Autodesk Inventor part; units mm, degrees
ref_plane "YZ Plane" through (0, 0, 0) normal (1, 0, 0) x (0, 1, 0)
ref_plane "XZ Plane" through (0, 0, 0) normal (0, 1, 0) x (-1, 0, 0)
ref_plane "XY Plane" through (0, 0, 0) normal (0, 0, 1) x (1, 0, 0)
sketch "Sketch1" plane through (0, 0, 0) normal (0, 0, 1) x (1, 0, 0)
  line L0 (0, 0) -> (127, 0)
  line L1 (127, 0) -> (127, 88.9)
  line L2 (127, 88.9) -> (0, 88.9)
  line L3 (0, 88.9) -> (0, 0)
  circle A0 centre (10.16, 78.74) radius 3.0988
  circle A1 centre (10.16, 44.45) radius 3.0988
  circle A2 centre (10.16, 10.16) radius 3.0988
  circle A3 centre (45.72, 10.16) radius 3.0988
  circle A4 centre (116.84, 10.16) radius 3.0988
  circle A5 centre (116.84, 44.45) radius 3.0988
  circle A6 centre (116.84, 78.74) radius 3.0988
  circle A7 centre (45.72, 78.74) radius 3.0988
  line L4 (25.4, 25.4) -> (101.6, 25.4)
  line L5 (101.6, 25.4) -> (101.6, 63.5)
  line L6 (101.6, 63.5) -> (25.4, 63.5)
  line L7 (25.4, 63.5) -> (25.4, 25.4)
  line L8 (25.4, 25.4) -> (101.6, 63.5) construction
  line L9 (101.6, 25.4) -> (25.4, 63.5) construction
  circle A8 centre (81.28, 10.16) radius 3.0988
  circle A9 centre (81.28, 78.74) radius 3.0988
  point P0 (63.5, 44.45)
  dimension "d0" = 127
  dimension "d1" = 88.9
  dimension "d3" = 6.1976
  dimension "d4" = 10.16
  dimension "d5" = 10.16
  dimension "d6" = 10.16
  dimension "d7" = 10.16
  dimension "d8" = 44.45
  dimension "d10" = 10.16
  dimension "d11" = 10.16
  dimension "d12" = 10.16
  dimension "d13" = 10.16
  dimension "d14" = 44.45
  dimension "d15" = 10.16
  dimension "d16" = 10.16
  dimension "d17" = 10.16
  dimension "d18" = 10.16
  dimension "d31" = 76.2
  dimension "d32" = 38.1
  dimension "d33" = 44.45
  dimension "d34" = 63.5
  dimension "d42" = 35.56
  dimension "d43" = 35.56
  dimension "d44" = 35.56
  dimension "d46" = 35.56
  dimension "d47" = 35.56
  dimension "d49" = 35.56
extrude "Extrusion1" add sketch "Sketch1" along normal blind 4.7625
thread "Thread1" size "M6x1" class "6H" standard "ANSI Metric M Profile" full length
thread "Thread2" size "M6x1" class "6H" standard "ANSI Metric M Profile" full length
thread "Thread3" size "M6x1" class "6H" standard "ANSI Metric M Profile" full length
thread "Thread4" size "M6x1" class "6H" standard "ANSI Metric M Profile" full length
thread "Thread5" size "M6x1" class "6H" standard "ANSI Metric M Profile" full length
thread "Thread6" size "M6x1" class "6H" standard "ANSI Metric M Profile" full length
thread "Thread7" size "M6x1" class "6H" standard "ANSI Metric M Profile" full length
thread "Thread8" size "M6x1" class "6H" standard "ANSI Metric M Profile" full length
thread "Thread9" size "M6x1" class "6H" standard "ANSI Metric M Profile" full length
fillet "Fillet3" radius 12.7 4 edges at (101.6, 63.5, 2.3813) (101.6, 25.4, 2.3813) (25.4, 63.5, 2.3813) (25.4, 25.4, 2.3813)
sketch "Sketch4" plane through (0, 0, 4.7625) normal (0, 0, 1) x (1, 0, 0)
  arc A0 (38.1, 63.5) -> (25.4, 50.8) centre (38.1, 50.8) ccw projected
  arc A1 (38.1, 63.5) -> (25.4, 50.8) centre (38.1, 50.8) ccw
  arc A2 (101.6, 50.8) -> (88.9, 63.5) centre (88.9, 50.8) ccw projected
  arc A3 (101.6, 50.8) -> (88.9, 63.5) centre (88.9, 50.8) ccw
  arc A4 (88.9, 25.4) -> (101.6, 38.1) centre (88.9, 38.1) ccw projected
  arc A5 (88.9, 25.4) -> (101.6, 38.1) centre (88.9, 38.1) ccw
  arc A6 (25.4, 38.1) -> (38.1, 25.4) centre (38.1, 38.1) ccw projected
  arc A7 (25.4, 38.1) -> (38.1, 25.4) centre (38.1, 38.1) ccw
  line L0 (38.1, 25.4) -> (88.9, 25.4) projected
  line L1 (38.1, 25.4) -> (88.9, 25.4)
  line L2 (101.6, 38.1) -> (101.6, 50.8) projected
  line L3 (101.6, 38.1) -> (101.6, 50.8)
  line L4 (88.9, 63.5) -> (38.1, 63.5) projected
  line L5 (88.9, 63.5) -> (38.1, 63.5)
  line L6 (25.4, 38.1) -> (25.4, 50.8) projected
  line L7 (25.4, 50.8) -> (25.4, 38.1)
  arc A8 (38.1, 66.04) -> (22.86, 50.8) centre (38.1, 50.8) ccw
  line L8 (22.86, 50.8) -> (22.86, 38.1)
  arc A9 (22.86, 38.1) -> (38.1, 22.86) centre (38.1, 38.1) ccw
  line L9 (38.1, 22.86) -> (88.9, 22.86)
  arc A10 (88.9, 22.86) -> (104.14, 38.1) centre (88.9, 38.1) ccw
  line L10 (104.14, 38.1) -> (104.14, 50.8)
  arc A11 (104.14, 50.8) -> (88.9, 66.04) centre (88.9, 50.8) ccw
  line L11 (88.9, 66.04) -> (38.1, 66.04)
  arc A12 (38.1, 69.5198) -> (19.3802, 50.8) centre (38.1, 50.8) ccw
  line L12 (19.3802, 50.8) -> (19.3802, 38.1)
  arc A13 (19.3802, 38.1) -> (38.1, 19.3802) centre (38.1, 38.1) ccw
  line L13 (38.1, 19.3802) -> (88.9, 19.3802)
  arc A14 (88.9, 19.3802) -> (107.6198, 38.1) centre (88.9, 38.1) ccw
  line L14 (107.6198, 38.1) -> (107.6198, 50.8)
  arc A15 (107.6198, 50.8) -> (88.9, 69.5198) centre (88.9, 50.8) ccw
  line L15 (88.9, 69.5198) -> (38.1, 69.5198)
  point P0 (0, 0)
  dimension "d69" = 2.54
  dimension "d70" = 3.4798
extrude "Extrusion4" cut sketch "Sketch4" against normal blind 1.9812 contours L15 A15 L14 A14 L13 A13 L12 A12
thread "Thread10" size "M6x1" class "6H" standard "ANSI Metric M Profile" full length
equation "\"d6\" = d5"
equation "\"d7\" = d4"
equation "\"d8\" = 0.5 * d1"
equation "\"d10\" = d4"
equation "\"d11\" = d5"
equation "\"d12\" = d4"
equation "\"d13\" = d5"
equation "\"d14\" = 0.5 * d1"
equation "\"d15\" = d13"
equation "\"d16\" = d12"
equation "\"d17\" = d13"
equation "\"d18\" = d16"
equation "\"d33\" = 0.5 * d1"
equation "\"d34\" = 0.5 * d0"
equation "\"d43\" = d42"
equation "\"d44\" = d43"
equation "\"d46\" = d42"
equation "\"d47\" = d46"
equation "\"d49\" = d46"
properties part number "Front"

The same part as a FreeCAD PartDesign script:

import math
import FreeCAD as App
import Part
import Sketcher

V = App.Vector
Q = App.Units.Quantity


def edges_at(feature, points):
    """Names of the edges that pass closest to the given points."""
    edges = feature.Shape.Edges
    near = lambda p: min(range(len(edges)), key=lambda i: edges[i].distToShape(Part.Vertex(*p))[0])
    return sorted({f"Edge{near(p) + 1}" for p in points})


def add_polygon(sketch, points):
    """Adds a closed chain of lines whose ends are joined by coincident constraints."""
    first, n = sketch.GeometryCount, len(points)
    for a, b in zip(points, points[1:] + points[:1]):
        sketch.addGeometry(Part.LineSegment(App.Vector(*a, 0), App.Vector(*b, 0)), False)
    for i in range(n):
        sketch.addConstraint(Sketcher.Constraint("Coincident", first + i, 2, first + (i + 1) % n, 1))

doc = App.newDocument("Part")
params = doc.addObject("Spreadsheet::Sheet", "Params")
for row, (alias, value) in enumerate([
    ("sketch1_width", "5 in"),
    ("sketch1_width2", "3 in"),
    ("sketch1_diameter", "0.244 in"),
    ("sketch1_height", "3.5 in"),
    ("sketch1_height2", "1.5 in"),
    ("pad1_length", "0.1875 in"),
    ("fillet_radius", "0.5 in"),
    ("sketch2_radius", "0.6 in"),
    ("sketch2_width", "2 in"),
    ("sketch2_height", "0.5 in"),
    ("sketch2_radius2", "0.737 in"),
    ("pocket1_length", "0.078 in"),
], start=1):
    params.set(f"A{row}", alias)
    params.set(f"B{row}", "=" + value)
    params.setAlias(f"B{row}", alias)

body = doc.addObject("PartDesign::Body", "Body")

sketch1 = body.newObject("Sketcher::SketchObject", "Sketch")
sketch1.AttachmentSupport = (doc.getObject("XY_Plane"), [""])
sketch1.MapMode = "FlatFace"
add_polygon(sketch1, [(0, 88.9), (0, 0), (127, 0), (127, 88.9)])
sketch1.addGeometry(Part.Circle(V(10.2, 10.2, 0), V(0, 0, 1), 3.1), False)
sketch1.addGeometry(Part.Circle(V(45.7, 10.2, 0), V(0, 0, 1), 3.1), False)
sketch1.addGeometry(Part.Circle(V(81.3, 10.2, 0), V(0, 0, 1), 3.1), False)
sketch1.addGeometry(Part.Circle(V(116.8, 10.2, 0), V(0, 0, 1), 3.1), False)
sketch1.addGeometry(Part.Circle(V(10.2, 44.5, 0), V(0, 0, 1), 3.1), False)
sketch1.addGeometry(Part.Circle(V(10.2, 78.7, 0), V(0, 0, 1), 3.1), False)
sketch1.addGeometry(Part.Circle(V(45.7, 78.7, 0), V(0, 0, 1), 3.1), False)
add_polygon(sketch1, [(101.6, 25.4), (25.4, 25.4), (25.4, 63.5), (101.6, 63.5)])
sketch1.addGeometry(Part.Circle(V(116.8, 44.5, 0), V(0, 0, 1), 3.1), False)
sketch1.addGeometry(Part.Circle(V(81.3, 78.7, 0), V(0, 0, 1), 3.1), False)
sketch1.addGeometry(Part.Circle(V(116.8, 78.7, 0), V(0, 0, 1), 3.1), False)
sketch1.addConstraint([
    Sketcher.Constraint("Vertical", 0),
    Sketcher.Constraint("Horizontal", 1),
    Sketcher.Constraint("Vertical", 2),
    Sketcher.Constraint("Horizontal", 3),
    Sketcher.Constraint("Horizontal", 11),
    Sketcher.Constraint("Vertical", 12),
    Sketcher.Constraint("Horizontal", 13),
    Sketcher.Constraint("Vertical", 14),
    Sketcher.Constraint("Coincident", 0, 2, -1, 1),
    Sketcher.Constraint("Equal", 4, 5),
    Sketcher.Constraint("Equal", 5, 6),
    Sketcher.Constraint("Equal", 6, 7),
    Sketcher.Constraint("Equal", 7, 8),
    Sketcher.Constraint("Equal", 8, 9),
    Sketcher.Constraint("Equal", 9, 10),
    Sketcher.Constraint("Equal", 10, 15),
    Sketcher.Constraint("Equal", 15, 16),
    Sketcher.Constraint("Equal", 16, 17),
    Sketcher.Constraint("Horizontal", 4, 3, 5, 3),
    Sketcher.Constraint("Horizontal", 5, 3, 6, 3),
    Sketcher.Constraint("Horizontal", 6, 3, 7, 3),
    Sketcher.Constraint("Horizontal", 9, 3, 10, 3),
    Sketcher.Constraint("Horizontal", 8, 3, 15, 3),
    Sketcher.Constraint("Horizontal", 10, 3, 16, 3),
    Sketcher.Constraint("Horizontal", 16, 3, 17, 3),
    Sketcher.Constraint("Vertical", 4, 3, 8, 3),
    Sketcher.Constraint("Vertical", 8, 3, 9, 3),
    Sketcher.Constraint("Vertical", 5, 3, 10, 3),
    Sketcher.Constraint("Vertical", 7, 3, 15, 3),
    Sketcher.Constraint("Vertical", 6, 3, 16, 3),
    Sketcher.Constraint("Vertical", 15, 3, 17, 3),
    Sketcher.Constraint("DistanceX", 1, 1, 1, 2, Q("5 in")),
    Sketcher.Constraint("DistanceX", 11, 2, 11, 1, Q("3 in")),
    Sketcher.Constraint("Diameter", 4, Q("0.244 in")),
    Sketcher.Constraint("DistanceY", 0, 2, 0, 1, Q("3.5 in")),
    Sketcher.Constraint("DistanceY", 12, 1, 12, 2, Q("1.5 in")),
    Sketcher.Constraint("DistanceX", -1, 1, 4, 3, Q("0.4 in")),
    Sketcher.Constraint("DistanceY", -1, 1, 4, 3, Q("0.4 in")),
    Sketcher.Constraint("DistanceY", -1, 1, 12, 2, Q("2.5 in")),
    Sketcher.Constraint("DistanceX", 4, 3, 5, 3, Q("1.4 in")),
    Sketcher.Constraint("DistanceX", 5, 3, 6, 3, Q("1.4 in")),
    Sketcher.Constraint("DistanceX", 6, 3, 7, 3, Q("1.4 in")),
    Sketcher.Constraint("DistanceY", 17, 3, 2, 2, Q("0.4 in")),
    Sketcher.Constraint("DistanceY", -1, 1, 8, 3, Q("1.75 in")),
    Sketcher.Constraint("DistanceX", -1, 1, 11, 2, Q("1 in")),
])
sketch1.setExpression("Constraints[39]", "Params.sketch1_width")
sketch1.setExpression("Constraints[40]", "Params.sketch1_width2")
sketch1.setExpression("Constraints[41]", "Params.sketch1_diameter")
sketch1.setExpression("Constraints[42]", "Params.sketch1_height")
sketch1.setExpression("Constraints[43]", "Params.sketch1_height2")
pad1 = body.newObject("PartDesign::Pad", "Pad")
pad1.Profile = sketch1
pad1.setExpression("Length", "Params.pad1_length")
doc.recompute()

fillet = body.newObject("PartDesign::Fillet", "Fillet")
fillet.Base = (pad1, edges_at(pad1, [
    (101.6, 63.5, 2.381),
    (101.6, 25.4, 2.381),
    (25.4, 63.5, 2.381),
    (25.4, 25.4, 2.381),
]))
fillet.setExpression("Radius", "Params.fillet_radius")

sketch2 = body.newObject("Sketcher::SketchObject", "Sketch001")
sketch2.AttachmentSupport = (doc.getObject("XY_Plane"), [""])
sketch2.MapMode = "FlatFace"
sketch2.AttachmentOffset = App.Placement(V(0, 0, 0.1875 * 25.4), App.Rotation())
sketch2.addGeometry([
    Part.LineSegment(V(89, 70, 0), V(38, 70, 0)),
    Part.ArcOfCircle(Part.Circle(V(38, 51, 0), V(0, 0, 1), 19), math.radians(90), math.radians(180)),
    Part.LineSegment(V(19, 51, 0), V(19, 38, 0)),
    Part.ArcOfCircle(Part.Circle(V(38, 38, 0), V(0, 0, 1), 19), math.radians(180), math.radians(270)),
    Part.LineSegment(V(38, 19, 0), V(89, 19, 0)),
    Part.ArcOfCircle(Part.Circle(V(89, 38, 0), V(0, 0, 1), 19), math.radians(-90), math.radians(0)),
    Part.LineSegment(V(108, 38, 0), V(108, 51, 0)),
    Part.ArcOfCircle(Part.Circle(V(89, 51, 0), V(0, 0, 1), 19), math.radians(0), math.radians(90)),
    Part.ArcOfCircle(Part.Circle(V(38, 51, 0), V(0, 0, 1), 15), math.radians(90), math.radians(180)),
    Part.LineSegment(V(38, 66, 0), V(89, 66, 0)),
    Part.ArcOfCircle(Part.Circle(V(89, 51, 0), V(0, 0, 1), 15), math.radians(0), math.radians(90)),
    Part.LineSegment(V(104, 51, 0), V(104, 38, 0)),
    Part.ArcOfCircle(Part.Circle(V(89, 38, 0), V(0, 0, 1), 15), math.radians(-90), math.radians(0)),
    Part.LineSegment(V(89, 23, 0), V(38, 23, 0)),
    Part.ArcOfCircle(Part.Circle(V(38, 38, 0), V(0, 0, 1), 15), math.radians(180), math.radians(270)),
    Part.LineSegment(V(23, 38, 0), V(23, 51, 0)),
], False)
sketch2.addConstraint([
    Sketcher.Constraint("Tangent", 0, 2, 1, 1),
    Sketcher.Constraint("Tangent", 1, 2, 2, 1),
    Sketcher.Constraint("Tangent", 2, 2, 3, 1),
    Sketcher.Constraint("Tangent", 3, 2, 4, 1),
    Sketcher.Constraint("Tangent", 4, 2, 5, 1),
    Sketcher.Constraint("Tangent", 5, 2, 6, 1),
    Sketcher.Constraint("Tangent", 6, 2, 7, 1),
    Sketcher.Constraint("Tangent", 7, 2, 0, 1),
    Sketcher.Constraint("Tangent", 8, 1, 9, 1),
    Sketcher.Constraint("Tangent", 9, 2, 10, 2),
    Sketcher.Constraint("Tangent", 10, 1, 11, 1),
    Sketcher.Constraint("Tangent", 11, 2, 12, 2),
    Sketcher.Constraint("Tangent", 12, 1, 13, 1),
    Sketcher.Constraint("Tangent", 13, 2, 14, 2),
    Sketcher.Constraint("Tangent", 14, 1, 15, 1),
    Sketcher.Constraint("Tangent", 15, 2, 8, 2),
    Sketcher.Constraint("Horizontal", 0),
    Sketcher.Constraint("Vertical", 2),
    Sketcher.Constraint("Horizontal", 4),
    Sketcher.Constraint("Vertical", 6),
    Sketcher.Constraint("Horizontal", 9),
    Sketcher.Constraint("Vertical", 11),
    Sketcher.Constraint("Horizontal", 13),
    Sketcher.Constraint("Vertical", 15),
    Sketcher.Constraint("Coincident", 8, 3, 1, 3),
    Sketcher.Constraint("Coincident", 10, 3, 7, 3),
    Sketcher.Constraint("Coincident", 12, 3, 5, 3),
    Sketcher.Constraint("Equal", 1, 3),
    Sketcher.Constraint("Equal", 3, 5),
    Sketcher.Constraint("Equal", 5, 7),
    Sketcher.Constraint("Equal", 12, 14),
    Sketcher.Constraint("Radius", 8, Q("0.6 in")),
    Sketcher.Constraint("DistanceX", 0, 2, 0, 1, Q("2 in")),
    Sketcher.Constraint("DistanceY", 2, 2, 2, 1, Q("0.5 in")),
    Sketcher.Constraint("DistanceY", -1, 1, 1, 3, Q("2 in")),
    Sketcher.Constraint("Radius", 1, Q("0.737 in")),
    Sketcher.Constraint("DistanceX", -1, 1, 1, 3, Q("1.5 in")),
])
sketch2.setExpression("Constraints[31]", "Params.sketch2_radius")
sketch2.setExpression("Constraints[32]", "Params.sketch2_width")
sketch2.setExpression("Constraints[33]", "Params.sketch2_height")
sketch2.setExpression("Constraints[35]", "Params.sketch2_radius2")
pocket1 = body.newObject("PartDesign::Pocket", "Pocket")
pocket1.Profile = sketch2
pocket1.setExpression("Length", "Params.pocket1_length")

doc.recompute()
